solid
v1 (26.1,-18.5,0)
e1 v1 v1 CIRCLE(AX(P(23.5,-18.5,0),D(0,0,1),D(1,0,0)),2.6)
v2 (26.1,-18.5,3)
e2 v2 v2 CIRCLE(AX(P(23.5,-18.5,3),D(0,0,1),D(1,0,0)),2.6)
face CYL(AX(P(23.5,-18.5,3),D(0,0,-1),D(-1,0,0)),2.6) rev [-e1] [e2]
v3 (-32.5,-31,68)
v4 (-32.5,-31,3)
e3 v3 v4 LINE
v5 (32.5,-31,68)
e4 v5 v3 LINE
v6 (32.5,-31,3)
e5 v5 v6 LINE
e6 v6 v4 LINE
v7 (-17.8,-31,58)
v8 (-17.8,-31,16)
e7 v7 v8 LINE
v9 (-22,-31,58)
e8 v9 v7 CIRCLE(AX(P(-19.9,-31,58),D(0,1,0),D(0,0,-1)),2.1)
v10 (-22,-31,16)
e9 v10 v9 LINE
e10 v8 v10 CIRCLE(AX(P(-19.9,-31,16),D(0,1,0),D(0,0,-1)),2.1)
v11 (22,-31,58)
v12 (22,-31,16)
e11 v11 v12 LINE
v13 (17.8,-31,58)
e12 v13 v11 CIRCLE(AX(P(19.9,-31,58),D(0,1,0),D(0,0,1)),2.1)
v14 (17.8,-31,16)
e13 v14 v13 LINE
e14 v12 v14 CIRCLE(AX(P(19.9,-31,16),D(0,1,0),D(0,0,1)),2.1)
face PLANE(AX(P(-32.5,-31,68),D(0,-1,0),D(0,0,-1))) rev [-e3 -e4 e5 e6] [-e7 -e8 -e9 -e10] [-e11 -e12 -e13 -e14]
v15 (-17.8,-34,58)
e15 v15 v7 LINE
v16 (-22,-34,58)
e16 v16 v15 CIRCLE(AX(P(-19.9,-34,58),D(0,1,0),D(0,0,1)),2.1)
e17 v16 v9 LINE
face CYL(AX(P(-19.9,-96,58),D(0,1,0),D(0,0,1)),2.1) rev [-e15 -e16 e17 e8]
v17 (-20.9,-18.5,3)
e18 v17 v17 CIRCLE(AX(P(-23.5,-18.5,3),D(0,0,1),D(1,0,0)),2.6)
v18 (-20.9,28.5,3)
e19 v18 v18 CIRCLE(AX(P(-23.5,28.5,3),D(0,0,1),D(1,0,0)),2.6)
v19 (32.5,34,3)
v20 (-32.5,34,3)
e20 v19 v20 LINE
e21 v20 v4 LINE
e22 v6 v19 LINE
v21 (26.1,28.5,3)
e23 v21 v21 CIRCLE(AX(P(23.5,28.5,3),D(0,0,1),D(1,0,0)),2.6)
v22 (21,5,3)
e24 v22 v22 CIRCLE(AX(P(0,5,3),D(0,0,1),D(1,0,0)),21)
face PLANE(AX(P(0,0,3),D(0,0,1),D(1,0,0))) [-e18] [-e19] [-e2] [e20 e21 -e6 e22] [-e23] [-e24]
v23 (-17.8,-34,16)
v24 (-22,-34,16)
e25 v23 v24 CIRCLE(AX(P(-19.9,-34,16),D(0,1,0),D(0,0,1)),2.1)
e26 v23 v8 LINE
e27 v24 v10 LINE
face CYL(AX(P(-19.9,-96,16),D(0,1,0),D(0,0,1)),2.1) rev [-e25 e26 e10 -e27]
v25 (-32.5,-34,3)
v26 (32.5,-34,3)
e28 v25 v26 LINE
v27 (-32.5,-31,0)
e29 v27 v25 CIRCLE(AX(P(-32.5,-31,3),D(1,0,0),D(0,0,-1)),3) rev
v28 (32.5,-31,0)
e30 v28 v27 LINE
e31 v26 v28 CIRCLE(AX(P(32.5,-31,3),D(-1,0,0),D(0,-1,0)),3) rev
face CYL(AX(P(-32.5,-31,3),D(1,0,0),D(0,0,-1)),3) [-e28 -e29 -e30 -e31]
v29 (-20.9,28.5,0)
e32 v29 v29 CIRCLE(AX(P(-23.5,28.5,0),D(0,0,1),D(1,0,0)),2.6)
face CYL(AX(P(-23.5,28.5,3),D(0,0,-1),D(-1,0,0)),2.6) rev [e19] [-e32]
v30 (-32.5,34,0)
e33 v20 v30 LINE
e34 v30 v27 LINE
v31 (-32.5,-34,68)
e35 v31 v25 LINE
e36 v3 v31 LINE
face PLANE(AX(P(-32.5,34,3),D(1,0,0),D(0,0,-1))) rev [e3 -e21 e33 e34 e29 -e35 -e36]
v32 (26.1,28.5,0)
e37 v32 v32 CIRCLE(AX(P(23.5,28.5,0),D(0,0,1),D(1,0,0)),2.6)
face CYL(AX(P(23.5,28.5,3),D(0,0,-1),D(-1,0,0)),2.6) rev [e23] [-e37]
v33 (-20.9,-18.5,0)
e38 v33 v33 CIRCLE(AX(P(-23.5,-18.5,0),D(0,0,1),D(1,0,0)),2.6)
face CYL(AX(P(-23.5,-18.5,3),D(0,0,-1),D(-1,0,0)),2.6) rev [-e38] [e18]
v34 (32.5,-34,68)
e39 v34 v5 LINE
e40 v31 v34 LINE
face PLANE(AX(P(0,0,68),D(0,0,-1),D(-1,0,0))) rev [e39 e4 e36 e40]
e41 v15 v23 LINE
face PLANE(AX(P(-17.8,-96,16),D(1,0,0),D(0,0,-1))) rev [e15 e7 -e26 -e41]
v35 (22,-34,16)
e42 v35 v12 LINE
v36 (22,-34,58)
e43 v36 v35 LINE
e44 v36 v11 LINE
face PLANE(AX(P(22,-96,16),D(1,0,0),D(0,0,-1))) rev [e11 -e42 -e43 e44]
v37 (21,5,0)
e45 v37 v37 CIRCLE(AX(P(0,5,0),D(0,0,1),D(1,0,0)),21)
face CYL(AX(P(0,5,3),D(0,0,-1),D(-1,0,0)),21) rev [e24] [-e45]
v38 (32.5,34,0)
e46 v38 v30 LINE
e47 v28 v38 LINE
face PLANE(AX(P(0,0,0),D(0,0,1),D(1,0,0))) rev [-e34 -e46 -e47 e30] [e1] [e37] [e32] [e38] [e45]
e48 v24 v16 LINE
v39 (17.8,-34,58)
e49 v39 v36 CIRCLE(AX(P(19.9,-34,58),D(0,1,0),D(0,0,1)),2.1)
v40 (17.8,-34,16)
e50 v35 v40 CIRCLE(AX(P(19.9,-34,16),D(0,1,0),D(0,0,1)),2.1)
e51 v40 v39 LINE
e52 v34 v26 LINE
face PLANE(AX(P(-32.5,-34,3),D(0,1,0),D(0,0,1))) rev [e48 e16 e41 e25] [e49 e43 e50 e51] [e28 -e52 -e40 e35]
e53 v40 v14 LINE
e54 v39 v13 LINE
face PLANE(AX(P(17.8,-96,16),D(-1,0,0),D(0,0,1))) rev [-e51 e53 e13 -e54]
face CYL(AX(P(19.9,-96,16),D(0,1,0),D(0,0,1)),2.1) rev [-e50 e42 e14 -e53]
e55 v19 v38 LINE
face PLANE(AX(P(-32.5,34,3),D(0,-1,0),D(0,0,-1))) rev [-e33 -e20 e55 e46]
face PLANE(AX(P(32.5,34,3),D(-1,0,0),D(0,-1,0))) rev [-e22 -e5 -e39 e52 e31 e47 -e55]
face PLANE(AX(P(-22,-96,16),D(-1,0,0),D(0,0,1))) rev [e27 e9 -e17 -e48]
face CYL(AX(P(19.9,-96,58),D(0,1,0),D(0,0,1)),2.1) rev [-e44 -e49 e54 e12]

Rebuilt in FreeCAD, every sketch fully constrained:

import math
import FreeCAD as App
import Part
import Sketcher


def edges_at(feature, points):
    """Names of the edges that pass closest to the given points."""
    edges = feature.Shape.Edges
    near = lambda p: min(range(len(edges)), key=lambda i: edges[i].distToShape(Part.Vertex(*p))[0])
    return sorted({f"Edge{near(p) + 1}" for p in points})


def add_polygon(sketch, points):
    """Adds a closed chain of lines whose ends are joined by coincident constraints."""
    first, n = sketch.GeometryCount, len(points)
    for a, b in zip(points, points[1:] + points[:1]):
        sketch.addGeometry(Part.LineSegment(App.Vector(*a, 0), App.Vector(*b, 0)), False)
    for i in range(n):
        sketch.addConstraint(Sketcher.Constraint("Coincident", first + i, 2, first + (i + 1) % n, 1))

doc = App.newDocument("Part")
body = doc.addObject("PartDesign::Body", "Body")

# Sketch on XY plane
sketch1 = body.newObject("Sketcher::SketchObject", "Sketch")
sketch1.AttachmentSupport = (doc.getObject("XY_Plane"), [""])
sketch1.MapMode = "FlatFace"
add_polygon(sketch1, [(-32.5, 34), (-32.5, -34), (32.5, -34), (32.5, 34)])  # lines 0-3
sketch1.addGeometry(Part.Circle(App.Vector(-23.5, -18.5, 0), App.Vector(0, 0, 1), 2.6), False)  # 4
sketch1.addGeometry(Part.Circle(App.Vector(23.5, -18.5, 0), App.Vector(0, 0, 1), 2.6), False)  # 5
sketch1.addGeometry(Part.Circle(App.Vector(-23.5, 28.5, 0), App.Vector(0, 0, 1), 2.6), False)  # 6
sketch1.addGeometry(Part.Circle(App.Vector(0, 5, 0), App.Vector(0, 0, 1), 21), False)  # 7
sketch1.addGeometry(Part.Circle(App.Vector(23.5, 28.5, 0), App.Vector(0, 0, 1), 2.6), False)  # 8
sketch1.addConstraint([
    Sketcher.Constraint("Vertical", 0),
    Sketcher.Constraint("Horizontal", 1),
    Sketcher.Constraint("Vertical", 2),
    Sketcher.Constraint("Horizontal", 3),
    Sketcher.Constraint("Equal", 4, 5),
    Sketcher.Constraint("Equal", 5, 6),
    Sketcher.Constraint("Equal", 6, 8),
    Sketcher.Constraint("Symmetric", 0, 2, 2, 2, -1, 1),
    Sketcher.Constraint("Symmetric", 4, 3, 5, 3, -2),
    Sketcher.Constraint("Symmetric", 6, 3, 8, 3, -2),
    Sketcher.Constraint("PointOnObject", 7, 3, -2),
    Sketcher.Constraint("Vertical", 4, 3, 6, 3),
    Sketcher.Constraint("Diameter", 7, 42.0),
    Sketcher.Constraint("Diameter", 4, 5.2),
    Sketcher.Constraint("DistanceX", 1, 1, 1, 2, 65.0),
    Sketcher.Constraint("DistanceY", 0, 2, 0, 1, 68.0),
    Sketcher.Constraint("DistanceY", -1, 1, 7, 3, 5.0),
    Sketcher.Constraint("DistanceX", 4, 3, 5, 3, 47.0),
    Sketcher.Constraint("DistanceY", 4, 3, 6, 3, 47.0),
    Sketcher.Constraint("DistanceY", 4, 3, -1, 1, 18.5),
])
pad1 = body.newObject("PartDesign::Pad", "Pad")
pad1.Profile = sketch1
pad1.Length = 3

# Sketch on XY plane
sketch2 = body.newObject("Sketcher::SketchObject", "Sketch001")
sketch2.AttachmentSupport = (doc.getObject("XY_Plane"), [""])
sketch2.MapMode = "FlatFace"
sketch2.AttachmentOffset = App.Placement(App.Vector(0, 0, 3), App.Rotation())
add_polygon(sketch2, [(-32.5, -31), (-32.5, -34), (32.5, -34), (32.5, -31)])  # lines 0-3
sketch2.addConstraint([
    Sketcher.Constraint("Vertical", 0),
    Sketcher.Constraint("Horizontal", 1),
    Sketcher.Constraint("Vertical", 2),
    Sketcher.Constraint("Horizontal", 3),
    Sketcher.Constraint("DistanceX", 1, 1, 1, 2, 65.0),
    Sketcher.Constraint("DistanceY", 0, 2, 0, 1, 3.0),
    Sketcher.Constraint("DistanceY", 0, 2, -1, 1, 34.0),
    Sketcher.Constraint("DistanceX", 0, 2, -1, 1, 32.5),
])
pad2 = body.newObject("PartDesign::Pad", "Pad001")
pad2.Profile = sketch2
pad2.Length = 65

# Sketch on XZ plane
sketch3 = body.newObject("Sketcher::SketchObject", "Sketch002")
sketch3.AttachmentSupport = (doc.getObject("XZ_Plane"), [""])
sketch3.MapMode = "FlatFace"
sketch3.AttachmentOffset = App.Placement(App.Vector(0, 0, 31), App.Rotation())
sketch3.addGeometry([
    Part.LineSegment(App.Vector(22, 58, 0), App.Vector(22, 16, 0)),  # 0
    Part.ArcOfCircle(Part.Circle(App.Vector(19.9, 16, 0), App.Vector(0, 0, 1), 2.1), math.radians(180), math.radians(360)),  # 1
    Part.LineSegment(App.Vector(17.8, 16, 0), App.Vector(17.8, 58, 0)),  # 2
    Part.ArcOfCircle(Part.Circle(App.Vector(19.9, 58, 0), App.Vector(0, 0, 1), 2.1), math.radians(0), math.radians(180)),  # 3
    Part.LineSegment(App.Vector(-22, 16, 0), App.Vector(-22, 58, 0)),  # 4
    Part.ArcOfCircle(Part.Circle(App.Vector(-19.9, 58, 0), App.Vector(0, 0, 1), 2.1), math.radians(0), math.radians(180)),  # 5
    Part.LineSegment(App.Vector(-17.8, 58, 0), App.Vector(-17.8, 16, 0)),  # 6
    Part.ArcOfCircle(Part.Circle(App.Vector(-19.9, 16, 0), App.Vector(0, 0, 1), 2.1), math.radians(180), math.radians(360)),  # 7
], False)
sketch3.addConstraint([
    Sketcher.Constraint("Tangent", 0, 2, 1, 2),
    Sketcher.Constraint("Tangent", 1, 1, 2, 1),
    Sketcher.Constraint("Tangent", 2, 2, 3, 2),
    Sketcher.Constraint("Tangent", 3, 1, 0, 1),
    Sketcher.Constraint("Tangent", 4, 2, 5, 2),
    Sketcher.Constraint("Tangent", 5, 1, 6, 1),
    Sketcher.Constraint("Tangent", 6, 2, 7, 2),
    Sketcher.Constraint("Tangent", 7, 1, 4, 1),
    Sketcher.Constraint("Vertical", 0),
    Sketcher.Constraint("Vertical", 2),
    Sketcher.Constraint("Vertical", 4),
    Sketcher.Constraint("Vertical", 6),
    Sketcher.Constraint("Equal", 3, 5),
    Sketcher.Constraint("Symmetric", 3, 3, 5, 3, -2),
    Sketcher.Constraint("Horizontal", 1, 3, 7, 3),
    Sketcher.Constraint("Radius", 1, 2.1),
    Sketcher.Constraint("DistanceY", 0, 2, 0, 1, 42.0),
    Sketcher.Constraint("DistanceY", -1, 1, 1, 3, 16.0),
    Sketcher.Constraint("DistanceX", -1, 1, 0, 2, 22.0),
])
pocket1 = body.newObject("PartDesign::Pocket", "Pocket")
pocket1.Profile = sketch3
pocket1.Length = 65
pocket1.Reversed = True
doc.recompute()

fillet = body.newObject("PartDesign::Fillet", "Fillet")
fillet.Base = (pocket1, edges_at(pocket1, [(0, -34, 0)]))
fillet.Radius = 3

doc.recompute()
